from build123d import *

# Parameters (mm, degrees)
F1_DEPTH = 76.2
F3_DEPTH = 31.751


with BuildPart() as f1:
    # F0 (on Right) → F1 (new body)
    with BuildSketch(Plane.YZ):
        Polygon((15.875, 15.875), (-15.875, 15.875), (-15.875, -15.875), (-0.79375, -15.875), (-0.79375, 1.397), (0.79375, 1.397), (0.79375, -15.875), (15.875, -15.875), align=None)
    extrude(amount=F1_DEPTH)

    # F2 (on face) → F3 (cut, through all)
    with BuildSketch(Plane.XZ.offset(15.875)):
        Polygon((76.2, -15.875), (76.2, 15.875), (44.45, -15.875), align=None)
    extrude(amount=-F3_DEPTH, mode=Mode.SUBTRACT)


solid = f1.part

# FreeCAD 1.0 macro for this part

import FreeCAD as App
import Part
import Sketcher

V = App.Vector
Q = App.Units.Quantity

doc = App.newDocument("Part")
body = doc.addObject("PartDesign::Body", "Body")

# Sketch on YZ plane
sketch1 = body.newObject("Sketcher::SketchObject", "Sketch")
sketch1.AttachmentSupport = (doc.getObject("YZ_Plane"), [""])
sketch1.MapMode = "FlatFace"
sketch1.addGeometry([
    Part.LineSegment(V(15.875, 15.875, 0), V(-15.875, 15.875, 0)),  # 0
    Part.LineSegment(V(-15.875, 15.875, 0), V(-15.875, -15.875, 0)),  # 1
    Part.LineSegment(V(-15.875, -15.875, 0), V(-0.79375, -15.875, 0)),  # 2
    Part.LineSegment(V(-0.79375, -15.875, 0), V(-0.79375, 1.397, 0)),  # 3
    Part.LineSegment(V(-0.79375, 1.397, 0), V(0.79375, 1.397, 0)),  # 4
    Part.LineSegment(V(0.79375, 1.397, 0), V(0.79375, -15.875, 0)),  # 5
    Part.LineSegment(V(0.79375, -15.875, 0), V(15.875, -15.875, 0)),  # 6
    Part.LineSegment(V(15.875, -15.875, 0), V(15.875, 15.875, 0)),  # 7
], False)
sketch1.addConstraint([
    Sketcher.Constraint("Coincident", 0, 2, 1, 1),
    Sketcher.Constraint("Coincident", 1, 2, 2, 1),
    Sketcher.Constraint("Coincident", 2, 2, 3, 1),
    Sketcher.Constraint("Coincident", 3, 2, 4, 1),
    Sketcher.Constraint("Coincident", 4, 2, 5, 1),
    Sketcher.Constraint("Coincident", 5, 2, 6, 1),
    Sketcher.Constraint("Coincident", 6, 2, 7, 1),
    Sketcher.Constraint("Coincident", 7, 2, 0, 1),
    Sketcher.Constraint("Horizontal", 0),
    Sketcher.Constraint("Vertical", 1),
    Sketcher.Constraint("Horizontal", 2),
    Sketcher.Constraint("Vertical", 3),
    Sketcher.Constraint("Horizontal", 4),
    Sketcher.Constraint("Vertical", 5),
    Sketcher.Constraint("Horizontal", 6),
    Sketcher.Constraint("Vertical", 7),
    Sketcher.Constraint("Symmetric", 0, 2, 6, 2, -1, 1),
    Sketcher.Constraint("Symmetric", 2, 2, 5, 2, -2),
    Sketcher.Constraint("Equal", 0, 1),
    Sketcher.Constraint("DistanceX", 0, 2, 0, 1, Q("1.25 in")),
    Sketcher.Constraint("DistanceY", 3, 1, 3, 2, Q("0.68 in")),
    Sketcher.Constraint("DistanceX", 2, 1, 2, 2, Q("0.59375 in")),
])
pad1 = body.newObject("PartDesign::Pad", "Pad")
pad1.Profile = sketch1
pad1.Length = Q("3 in")

# Sketch on XZ plane
sketch2 = body.newObject("Sketcher::SketchObject", "Sketch001")
sketch2.AttachmentSupport = (doc.getObject("XZ_Plane"), [""])
sketch2.MapMode = "FlatFace"
sketch2.AttachmentOffset = App.Placement(V(0, 0, 0.625 * 25.4), App.Rotation())
sketch2.addGeometry([
    Part.LineSegment(V(76.2, -15.875, 0), V(76.2, 15.875, 0)),
    Part.LineSegment(V(76.2, 15.875, 0), V(44.45, -15.875, 0)),
    Part.LineSegment(V(44.45, -15.875, 0), V(76.2, -15.875, 0)),
], False)
sketch2.addConstraint([
    Sketcher.Constraint("Coincident", 0, 2, 1, 1),
    Sketcher.Constraint("Coincident", 1, 2, 2, 1),
    Sketcher.Constraint("Coincident", 2, 2, 0, 1),
    Sketcher.Constraint("Vertical", 0),
    Sketcher.Constraint("Horizontal", 2),
    Sketcher.Constraint("Equal", 2, 0),
    Sketcher.Constraint("DistanceX", -1, 1, 0, 2, Q("3 in")),
    Sketcher.Constraint("DistanceX", 2, 1, 2, 2, Q("1.25 in")),
    Sketcher.Constraint("DistanceY", -1, 1, 0, 2, Q("0.625 in")),
])
pocket1 = body.newObject("PartDesign::Pocket", "Pocket")
pocket1.Profile = sketch2
pocket1.Type = "ThroughAll"

doc.recompute()
